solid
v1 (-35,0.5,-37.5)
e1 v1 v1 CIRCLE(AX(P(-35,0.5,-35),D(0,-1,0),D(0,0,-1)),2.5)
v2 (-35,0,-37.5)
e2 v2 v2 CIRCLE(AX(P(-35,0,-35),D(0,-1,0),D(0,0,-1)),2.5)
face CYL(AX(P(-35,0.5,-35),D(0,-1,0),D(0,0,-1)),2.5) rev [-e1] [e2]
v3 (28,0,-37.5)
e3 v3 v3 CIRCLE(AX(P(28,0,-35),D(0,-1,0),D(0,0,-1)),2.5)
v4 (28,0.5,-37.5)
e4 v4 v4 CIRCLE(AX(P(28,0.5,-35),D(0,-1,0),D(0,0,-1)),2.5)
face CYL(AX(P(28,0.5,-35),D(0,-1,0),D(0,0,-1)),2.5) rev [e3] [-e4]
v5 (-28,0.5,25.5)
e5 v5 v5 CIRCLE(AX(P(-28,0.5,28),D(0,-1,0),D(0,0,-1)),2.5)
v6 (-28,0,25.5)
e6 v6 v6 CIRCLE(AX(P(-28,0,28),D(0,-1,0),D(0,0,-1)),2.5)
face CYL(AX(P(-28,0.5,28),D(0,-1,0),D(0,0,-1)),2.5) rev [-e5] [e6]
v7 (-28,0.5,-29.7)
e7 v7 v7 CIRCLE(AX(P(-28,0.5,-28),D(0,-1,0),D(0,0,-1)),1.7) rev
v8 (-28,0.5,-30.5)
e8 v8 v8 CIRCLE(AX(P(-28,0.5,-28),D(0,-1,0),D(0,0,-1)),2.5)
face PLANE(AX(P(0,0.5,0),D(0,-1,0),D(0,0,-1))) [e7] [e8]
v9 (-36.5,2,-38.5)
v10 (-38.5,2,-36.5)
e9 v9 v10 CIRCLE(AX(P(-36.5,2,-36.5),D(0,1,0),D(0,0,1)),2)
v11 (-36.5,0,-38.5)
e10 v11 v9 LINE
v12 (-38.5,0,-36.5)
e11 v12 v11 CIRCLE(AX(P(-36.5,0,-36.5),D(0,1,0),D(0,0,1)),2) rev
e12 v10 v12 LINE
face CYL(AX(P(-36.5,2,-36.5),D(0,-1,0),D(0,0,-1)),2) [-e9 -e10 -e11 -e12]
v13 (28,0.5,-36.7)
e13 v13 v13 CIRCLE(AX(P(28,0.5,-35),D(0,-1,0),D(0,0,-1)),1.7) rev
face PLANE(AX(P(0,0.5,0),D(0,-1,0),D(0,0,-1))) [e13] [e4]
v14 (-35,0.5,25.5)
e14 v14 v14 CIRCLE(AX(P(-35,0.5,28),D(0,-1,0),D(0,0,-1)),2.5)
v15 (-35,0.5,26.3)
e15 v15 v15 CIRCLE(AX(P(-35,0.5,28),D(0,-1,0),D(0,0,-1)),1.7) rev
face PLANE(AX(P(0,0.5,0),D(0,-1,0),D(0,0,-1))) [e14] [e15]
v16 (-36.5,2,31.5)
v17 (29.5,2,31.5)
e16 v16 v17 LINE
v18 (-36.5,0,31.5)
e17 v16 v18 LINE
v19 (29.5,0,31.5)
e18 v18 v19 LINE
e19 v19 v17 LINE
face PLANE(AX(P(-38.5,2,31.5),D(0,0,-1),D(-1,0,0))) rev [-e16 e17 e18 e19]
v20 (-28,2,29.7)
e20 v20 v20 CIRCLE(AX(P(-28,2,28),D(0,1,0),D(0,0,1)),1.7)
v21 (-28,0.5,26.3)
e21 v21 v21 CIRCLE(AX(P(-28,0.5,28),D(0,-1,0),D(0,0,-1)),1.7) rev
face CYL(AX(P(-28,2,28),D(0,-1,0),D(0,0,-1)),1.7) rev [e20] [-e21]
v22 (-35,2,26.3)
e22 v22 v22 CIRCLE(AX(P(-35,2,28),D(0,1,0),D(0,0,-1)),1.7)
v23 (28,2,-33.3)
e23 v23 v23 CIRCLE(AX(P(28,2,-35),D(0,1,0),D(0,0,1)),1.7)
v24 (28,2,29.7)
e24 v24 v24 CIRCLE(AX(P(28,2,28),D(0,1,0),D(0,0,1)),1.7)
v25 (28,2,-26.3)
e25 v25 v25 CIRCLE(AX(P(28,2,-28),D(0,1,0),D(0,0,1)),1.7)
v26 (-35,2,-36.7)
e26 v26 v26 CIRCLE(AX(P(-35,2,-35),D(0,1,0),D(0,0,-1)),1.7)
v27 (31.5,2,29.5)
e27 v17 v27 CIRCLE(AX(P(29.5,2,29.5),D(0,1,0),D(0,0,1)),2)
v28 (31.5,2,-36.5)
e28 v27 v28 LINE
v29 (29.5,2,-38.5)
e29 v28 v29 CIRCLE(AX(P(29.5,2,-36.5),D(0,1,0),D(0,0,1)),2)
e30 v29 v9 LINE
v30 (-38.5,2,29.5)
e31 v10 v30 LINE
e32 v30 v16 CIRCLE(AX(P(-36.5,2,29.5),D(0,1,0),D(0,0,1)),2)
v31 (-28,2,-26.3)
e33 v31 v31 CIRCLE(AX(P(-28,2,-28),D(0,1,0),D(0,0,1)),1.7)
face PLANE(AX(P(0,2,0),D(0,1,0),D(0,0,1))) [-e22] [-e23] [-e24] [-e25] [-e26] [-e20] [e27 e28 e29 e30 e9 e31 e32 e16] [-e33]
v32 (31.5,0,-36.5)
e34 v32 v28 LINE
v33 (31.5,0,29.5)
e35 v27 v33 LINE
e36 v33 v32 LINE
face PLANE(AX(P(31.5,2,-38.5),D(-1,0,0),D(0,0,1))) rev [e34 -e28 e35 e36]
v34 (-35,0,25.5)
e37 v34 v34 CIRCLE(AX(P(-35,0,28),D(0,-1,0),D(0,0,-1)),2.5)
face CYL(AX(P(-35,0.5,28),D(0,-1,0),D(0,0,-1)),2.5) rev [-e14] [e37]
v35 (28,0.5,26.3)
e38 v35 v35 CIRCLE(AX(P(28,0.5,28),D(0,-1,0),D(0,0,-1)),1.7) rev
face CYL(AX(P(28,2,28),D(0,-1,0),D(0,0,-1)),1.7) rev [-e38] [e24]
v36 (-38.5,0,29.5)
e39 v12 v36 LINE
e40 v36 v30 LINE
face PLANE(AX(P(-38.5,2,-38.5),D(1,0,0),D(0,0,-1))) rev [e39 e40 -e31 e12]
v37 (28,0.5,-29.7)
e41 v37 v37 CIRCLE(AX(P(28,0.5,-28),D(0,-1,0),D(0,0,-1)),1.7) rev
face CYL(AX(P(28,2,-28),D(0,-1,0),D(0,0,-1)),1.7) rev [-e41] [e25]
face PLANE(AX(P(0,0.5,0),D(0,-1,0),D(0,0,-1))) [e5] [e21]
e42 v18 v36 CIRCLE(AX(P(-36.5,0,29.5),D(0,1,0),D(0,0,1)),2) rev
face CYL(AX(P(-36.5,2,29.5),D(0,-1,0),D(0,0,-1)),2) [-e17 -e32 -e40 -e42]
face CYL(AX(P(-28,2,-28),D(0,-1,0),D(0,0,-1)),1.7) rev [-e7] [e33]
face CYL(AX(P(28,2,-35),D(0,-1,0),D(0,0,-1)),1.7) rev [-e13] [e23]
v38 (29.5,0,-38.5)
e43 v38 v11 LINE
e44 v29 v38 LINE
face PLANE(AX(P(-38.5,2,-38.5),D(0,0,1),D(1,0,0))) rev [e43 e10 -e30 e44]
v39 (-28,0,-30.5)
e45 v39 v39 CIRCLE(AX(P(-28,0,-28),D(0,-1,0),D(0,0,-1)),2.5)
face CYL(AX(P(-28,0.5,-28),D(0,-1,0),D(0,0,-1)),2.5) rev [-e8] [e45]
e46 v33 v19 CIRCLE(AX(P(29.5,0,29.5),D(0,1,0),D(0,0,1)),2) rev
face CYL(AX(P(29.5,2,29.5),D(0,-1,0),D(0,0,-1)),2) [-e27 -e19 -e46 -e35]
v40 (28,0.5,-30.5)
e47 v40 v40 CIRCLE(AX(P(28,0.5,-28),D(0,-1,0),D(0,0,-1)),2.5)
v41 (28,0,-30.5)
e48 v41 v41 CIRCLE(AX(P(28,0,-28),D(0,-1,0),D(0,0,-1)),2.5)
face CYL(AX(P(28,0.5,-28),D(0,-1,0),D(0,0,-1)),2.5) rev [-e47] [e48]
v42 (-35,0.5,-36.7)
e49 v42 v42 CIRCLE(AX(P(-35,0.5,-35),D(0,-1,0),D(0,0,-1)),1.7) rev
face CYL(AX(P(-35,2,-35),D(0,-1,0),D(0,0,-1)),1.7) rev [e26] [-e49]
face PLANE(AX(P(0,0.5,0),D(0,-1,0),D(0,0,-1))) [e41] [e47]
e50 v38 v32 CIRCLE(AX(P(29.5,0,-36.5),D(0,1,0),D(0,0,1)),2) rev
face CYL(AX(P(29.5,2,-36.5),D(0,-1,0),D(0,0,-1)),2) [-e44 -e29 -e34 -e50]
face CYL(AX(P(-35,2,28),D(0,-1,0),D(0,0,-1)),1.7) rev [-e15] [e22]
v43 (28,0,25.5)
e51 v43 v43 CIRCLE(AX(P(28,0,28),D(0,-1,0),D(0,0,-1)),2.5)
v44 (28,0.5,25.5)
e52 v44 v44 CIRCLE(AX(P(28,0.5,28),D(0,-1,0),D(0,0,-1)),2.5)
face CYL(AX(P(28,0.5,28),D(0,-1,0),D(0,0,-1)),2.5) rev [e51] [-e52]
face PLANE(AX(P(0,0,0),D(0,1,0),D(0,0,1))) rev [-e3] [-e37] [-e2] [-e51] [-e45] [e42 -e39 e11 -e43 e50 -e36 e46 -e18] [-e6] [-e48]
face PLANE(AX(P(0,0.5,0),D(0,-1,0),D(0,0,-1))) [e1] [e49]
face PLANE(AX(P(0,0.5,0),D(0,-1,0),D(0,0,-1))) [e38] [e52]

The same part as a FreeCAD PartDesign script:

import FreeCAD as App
import Part
import Sketcher


def edges_at(feature, points):
    """Names of the edges that pass closest to the given points."""
    edges = feature.Shape.Edges
    near = lambda p: min(range(len(edges)), key=lambda i: edges[i].distToShape(Part.Vertex(*p))[0])
    return sorted({f"Edge{near(p) + 1}" for p in points})

doc = App.newDocument("Part")
body = doc.addObject("PartDesign::Body", "Body")

sketch1 = body.newObject("Sketcher::SketchObject", "Sketch")
sketch1.AttachmentSupport = (doc.getObject("XZ_Plane"), [""])
sketch1.MapMode = "FlatFace"
sketch1.addGeometry(Part.LineSegment(App.Vector(-38.5, -38.5, 0), App.Vector(-38.5, 31.5, 0)), False)
sketch1.addGeometry(Part.LineSegment(App.Vector(-38.5, 31.5, 0), App.Vector(31.5, 31.5, 0)), False)
sketch1.addGeometry(Part.LineSegment(App.Vector(31.5, 31.5, 0), App.Vector(31.5, -38.5, 0)), False)
sketch1.addGeometry(Part.LineSegment(App.Vector(31.5, -38.5, 0), App.Vector(-38.5, -38.5, 0)), False)
sketch1.addGeometry(Part.Circle(App.Vector(-35, 28, 0), App.Vector(0, 0, 1), 1.7), False)
sketch1.addGeometry(Part.Circle(App.Vector(-28, 28, 0), App.Vector(0, 0, 1), 1.7), False)
sketch1.addGeometry(Part.Circle(App.Vector(28, 28, 0), App.Vector(0, 0, 1), 1.7), False)
sketch1.addGeometry(Part.Circle(App.Vector(-28, -28, 0), App.Vector(0, 0, 1), 1.7), False)
sketch1.addGeometry(Part.Circle(App.Vector(-35, -35, 0), App.Vector(0, 0, 1), 1.7), False)
sketch1.addGeometry(Part.Circle(App.Vector(28, -28, 0), App.Vector(0, 0, 1), 1.7), False)
sketch1.addGeometry(Part.Circle(App.Vector(28, -35, 0), App.Vector(0, 0, 1), 1.7), False)
sketch1.addConstraint(Sketcher.Constraint("Coincident", 0, 2, 1, 1))
sketch1.addConstraint(Sketcher.Constraint("Coincident", 1, 2, 2, 1))
sketch1.addConstraint(Sketcher.Constraint("Coincident", 2, 2, 3, 1))
sketch1.addConstraint(Sketcher.Constraint("Coincident", 3, 2, 0, 1))
sketch1.addConstraint(Sketcher.Constraint("Vertical", 0))
sketch1.addConstraint(Sketcher.Constraint("Horizontal", 1))
sketch1.addConstraint(Sketcher.Constraint("Vertical", 2))
sketch1.addConstraint(Sketcher.Constraint("Horizontal", 3))
sketch1.addConstraint(Sketcher.Constraint("Equal", 4, 5))
sketch1.addConstraint(Sketcher.Constraint("Equal", 5, 6))
sketch1.addConstraint(Sketcher.Constraint("Equal", 6, 7))
sketch1.addConstraint(Sketcher.Constraint("Equal", 7, 8))
sketch1.addConstraint(Sketcher.Constraint("Equal", 8, 9))
sketch1.addConstraint(Sketcher.Constraint("Equal", 9, 10))
sketch1.addConstraint(Sketcher.Constraint("Symmetric", 6, 3, 7, 3, -1, 1))
sketch1.addConstraint(Sketcher.Constraint("Symmetric", 5, 3, 9, 3, -1, 1))
sketch1.addConstraint(Sketcher.Constraint("Symmetric", 5, 3, 6, 3, -2))
sketch1.addConstraint(Sketcher.Constraint("Horizontal", 4, 3, 5, 3))
sketch1.addConstraint(Sketcher.Constraint("Horizontal", 8, 3, 10, 3))
sketch1.addConstraint(Sketcher.Constraint("Vertical", 4, 3, 8, 3))
sketch1.addConstraint(Sketcher.Constraint("Vertical", 9, 3, 10, 3))
sketch1.addConstraint(Sketcher.Constraint("Equal", 3, 0))
sketch1.addConstraint(Sketcher.Constraint("Diameter", 4, 3.4))
sketch1.addConstraint(Sketcher.Constraint("DistanceX", 1, 1, 1, 2, 70.0))
sketch1.addConstraint(Sketcher.Constraint("DistanceX", 4, 3, -1, 1, 35.0))
sketch1.addConstraint(Sketcher.Constraint("DistanceY", -1, 1, 4, 3, 28.0))
sketch1.addConstraint(Sketcher.Constraint("DistanceX", 5, 3, -1, 1, 28.0))
sketch1.addConstraint(Sketcher.Constraint("DistanceY", 8, 3, -1, 1, 35.0))
sketch1.addConstraint(Sketcher.Constraint("DistanceX", 0, 2, -1, 1, 38.5))
sketch1.addConstraint(Sketcher.Constraint("DistanceY", -1, 1, 0, 2, 31.5))
pad1 = body.newObject("PartDesign::Pad", "Pad")
pad1.Profile = sketch1
pad1.Length = 2
pad1.Reversed = True
doc.recompute()

fillet = body.newObject("PartDesign::Fillet", "Fillet")
fillet.Base = (pad1, edges_at(pad1, [
    (-38.5, 1, -38.5),
    (31.5, 1, -38.5),
    (31.5, 1, 31.5),
    (-38.5, 1, 31.5),
]))
fillet.Radius = 2

sketch2 = body.newObject("Sketcher::SketchObject", "Sketch001")
sketch2.AttachmentSupport = (doc.getObject("XZ_Plane"), [""])
sketch2.MapMode = "FlatFace"
sketch2.addGeometry(Part.Circle(App.Vector(-28, 28, 0), App.Vector(0, 0, 1), 2.5), False)
sketch2.addGeometry(Part.Circle(App.Vector(-28, 28, 0), App.Vector(0, 0, 1), 1.7), False)
sketch2.addGeometry(Part.Circle(App.Vector(-35, 28, 0), App.Vector(0, 0, 1), 2.5), False)
sketch2.addGeometry(Part.Circle(App.Vector(-35, 28, 0), App.Vector(0, 0, 1), 1.7), False)
sketch2.addGeometry(Part.Circle(App.Vector(28, 28, 0), App.Vector(0, 0, 1), 2.5), False)
sketch2.addGeometry(Part.Circle(App.Vector(28, 28, 0), App.Vector(0, 0, 1), 1.7), False)
sketch2.addGeometry(Part.Circle(App.Vector(28, -28, 0), App.Vector(0, 0, 1), 2.5), False)
sketch2.addGeometry(Part.Circle(App.Vector(28, -28, 0), App.Vector(0, 0, 1), 1.7), False)
sketch2.addGeometry(Part.Circle(App.Vector(28, -35, 0), App.Vector(0, 0, 1), 2.5), False)
sketch2.addGeometry(Part.Circle(App.Vector(28, -35, 0), App.Vector(0, 0, 1), 1.7), False)
sketch2.addGeometry(Part.Circle(App.Vector(-28, -28, 0), App.Vector(0, 0, 1), 2.5), False)
sketch2.addGeometry(Part.Circle(App.Vector(-28, -28, 0), App.Vector(0, 0, 1), 1.7), False)
sketch2.addGeometry(Part.Circle(App.Vector(-35, -35, 0), App.Vector(0, 0, 1), 2.5), False)
sketch2.addGeometry(Part.Circle(App.Vector(-35, -35, 0), App.Vector(0, 0, 1), 1.7), False)
sketch2.addConstraint(Sketcher.Constraint("Coincident", 1, 3, 0, 3))
sketch2.addConstraint(Sketcher.Constraint("Coincident", 3, 3, 2, 3))
sketch2.addConstraint(Sketcher.Constraint("Coincident", 5, 3, 4, 3))
sketch2.addConstraint(Sketcher.Constraint("Coincident", 7, 3, 6, 3))
sketch2.addConstraint(Sketcher.Constraint("Coincident", 9, 3, 8, 3))
sketch2.addConstraint(Sketcher.Constraint("Coincident", 11, 3, 10, 3))
sketch2.addConstraint(Sketcher.Constraint("Coincident", 13, 3, 12, 3))
sketch2.addConstraint(Sketcher.Constraint("Equal", 0, 2))
sketch2.addConstraint(Sketcher.Constraint("Equal", 1, 3))
sketch2.addConstraint(Sketcher.Constraint("Equal", 2, 4))
sketch2.addConstraint(Sketcher.Constraint("Equal", 3, 5))
sketch2.addConstraint(Sketcher.Constraint("Equal", 4, 6))
sketch2.addConstraint(Sketcher.Constraint("Equal", 5, 7))
sketch2.addConstraint(Sketcher.Constraint("Equal", 6, 8))
sketch2.addConstraint(Sketcher.Constraint("Equal", 7, 9))
sketch2.addConstraint(Sketcher.Constraint("Equal", 8, 10))
sketch2.addConstraint(Sketcher.Constraint("Equal", 9, 11))
sketch2.addConstraint(Sketcher.Constraint("Equal", 10, 12))
sketch2.addConstraint(Sketcher.Constraint("Equal", 11, 13))
sketch2.addConstraint(Sketcher.Constraint("Symmetric", 0, 3, 6, 3, -1, 1))
sketch2.addConstraint(Sketcher.Constraint("Symmetric", 4, 3, 10, 3, -1, 1))
sketch2.addConstraint(Sketcher.Constraint("Symmetric", 0, 3, 4, 3, -2))
sketch2.addConstraint(Sketcher.Constraint("Horizontal", 1, 3, 2, 3))
sketch2.addConstraint(Sketcher.Constraint("Horizontal", 9, 3, 12, 3))
sketch2.addConstraint(Sketcher.Constraint("Vertical", 7, 3, 8, 3))
sketch2.addConstraint(Sketcher.Constraint("Vertical", 3, 3, 12, 3))
sketch2.addConstraint(Sketcher.Constraint("Diameter", 0, 5.0))
sketch2.addConstraint(Sketcher.Constraint("Diameter", 1, 3.4))
sketch2.addConstraint(Sketcher.Constraint("DistanceX", 0, 3, -1, 1, 28.0))
sketch2.addConstraint(Sketcher.Constraint("DistanceY", -1, 1, 0, 3, 28.0))
sketch2.addConstraint(Sketcher.Constraint("DistanceX", 2, 3, -1, 1, 35.0))
sketch2.addConstraint(Sketcher.Constraint("DistanceY", 8, 3, -1, 1, 35.0))
pocket1 = body.newObject("PartDesign::Pocket", "Pocket")
pocket1.Profile = sketch2
pocket1.Length = 0.5

doc.recompute()
